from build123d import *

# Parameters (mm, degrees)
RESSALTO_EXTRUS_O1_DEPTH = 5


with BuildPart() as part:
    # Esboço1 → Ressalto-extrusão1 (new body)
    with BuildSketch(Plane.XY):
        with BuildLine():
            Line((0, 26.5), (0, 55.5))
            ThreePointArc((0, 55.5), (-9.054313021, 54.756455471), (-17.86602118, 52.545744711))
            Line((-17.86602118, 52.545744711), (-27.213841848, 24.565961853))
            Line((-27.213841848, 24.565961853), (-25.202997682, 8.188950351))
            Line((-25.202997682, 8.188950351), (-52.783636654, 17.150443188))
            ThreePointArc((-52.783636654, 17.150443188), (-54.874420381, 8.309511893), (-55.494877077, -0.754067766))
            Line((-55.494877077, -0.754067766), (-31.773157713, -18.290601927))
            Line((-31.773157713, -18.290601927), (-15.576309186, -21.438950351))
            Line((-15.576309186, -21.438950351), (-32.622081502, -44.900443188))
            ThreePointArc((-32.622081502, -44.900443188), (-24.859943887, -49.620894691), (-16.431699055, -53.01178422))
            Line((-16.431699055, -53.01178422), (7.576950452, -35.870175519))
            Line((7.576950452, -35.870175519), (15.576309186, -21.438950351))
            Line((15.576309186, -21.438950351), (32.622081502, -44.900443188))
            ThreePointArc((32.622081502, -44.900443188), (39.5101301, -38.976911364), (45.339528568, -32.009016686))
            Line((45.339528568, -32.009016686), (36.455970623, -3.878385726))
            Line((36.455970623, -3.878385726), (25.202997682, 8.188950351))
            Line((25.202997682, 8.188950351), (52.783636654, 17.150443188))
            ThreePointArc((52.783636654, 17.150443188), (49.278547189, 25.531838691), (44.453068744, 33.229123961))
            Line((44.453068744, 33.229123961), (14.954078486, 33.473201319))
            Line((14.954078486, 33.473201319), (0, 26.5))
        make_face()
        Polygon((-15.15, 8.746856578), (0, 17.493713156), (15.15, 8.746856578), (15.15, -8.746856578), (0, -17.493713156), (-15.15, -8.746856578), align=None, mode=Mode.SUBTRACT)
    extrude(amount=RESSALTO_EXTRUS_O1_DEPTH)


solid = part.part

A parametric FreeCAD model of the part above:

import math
import FreeCAD as App
import Part
import Sketcher
Q = App.Units.Quantity


def add_polygon(sketch, points):
    """Adds a closed chain of lines whose ends are joined by coincident constraints."""
    first, n = sketch.GeometryCount, len(points)
    for a, b in zip(points, points[1:] + points[:1]):
        sketch.addGeometry(Part.LineSegment(App.Vector(*a, 0), App.Vector(*b, 0)), False)
    for i in range(n):
        sketch.addConstraint(Sketcher.Constraint("Coincident", first + i, 2, first + (i + 1) % n, 1))

doc = App.newDocument("Part")
body = doc.addObject("PartDesign::Body", "Body")

# Sketch on XY plane
sketch1 = body.newObject("Sketcher::SketchObject", "Sketch")
sketch1.AttachmentSupport = (doc.getObject("XY_Plane"), [""])
sketch1.MapMode = "FlatFace"
sketch1.addGeometry(Part.LineSegment(App.Vector(0, 26.5, 0), App.Vector(0, 55.5, 0)), False)  # 0
sketch1.addGeometry(Part.ArcOfCircle(Part.Circle(App.Vector(0, 0, 0), App.Vector(0, 0, 1), 55.5), math.radians(90), math.radians(108.778491)), False)  # 1
sketch1.addGeometry(Part.LineSegment(App.Vector(-17.866021, 52.545745, 0), App.Vector(-27.213842, 24.565962, 0)), False)  # 2
sketch1.addGeometry(Part.LineSegment(App.Vector(-27.213842, 24.565962, 0), App.Vector(-25.202998, 8.18895, 0)), False)  # 3
sketch1.addGeometry(Part.LineSegment(App.Vector(-25.202998, 8.18895, 0), App.Vector(-52.783637, 17.150443, 0)), False)  # 4
sketch1.addGeometry(Part.ArcOfCircle(Part.Circle(App.Vector(0, 0, 0), App.Vector(0, 0, 1), 55.5), math.radians(162), math.radians(180.778491)), False)  # 5
sketch1.addGeometry(Part.LineSegment(App.Vector(-55.494877, -0.754068, 0), App.Vector(-31.773158, -18.290602, 0)), False)  # 6
sketch1.addGeometry(Part.LineSegment(App.Vector(-31.773158, -18.290602, 0), App.Vector(-15.576309, -21.43895, 0)), False)  # 7
sketch1.addGeometry(Part.LineSegment(App.Vector(-15.576309, -21.43895, 0), App.Vector(-32.622082, -44.900443, 0)), False)  # 8
sketch1.addGeometry(Part.ArcOfCircle(Part.Circle(App.Vector(0, 0, 0), App.Vector(0, 0, 1), 55.5), math.radians(-126), math.radians(-107.221509)), False)  # 9
sketch1.addGeometry(Part.LineSegment(App.Vector(-16.431699, -53.011784, 0), App.Vector(7.57695, -35.870176, 0)), False)  # 10
sketch1.addGeometry(Part.LineSegment(App.Vector(7.57695, -35.870176, 0), App.Vector(15.576309, -21.43895, 0)), False)  # 11
sketch1.addGeometry(Part.LineSegment(App.Vector(15.576309, -21.43895, 0), App.Vector(32.622082, -44.900443, 0)), False)  # 12
sketch1.addGeometry(Part.ArcOfCircle(Part.Circle(App.Vector(0, 0, 0), App.Vector(0, 0, 1), 55.5), math.radians(-54), math.radians(-35.221509)), False)  # 13
sketch1.addGeometry(Part.LineSegment(App.Vector(45.339529, -32.009017, 0), App.Vector(36.455971, -3.878386, 0)), False)  # 14
sketch1.addGeometry(Part.LineSegment(App.Vector(36.455971, -3.878386, 0), App.Vector(25.202998, 8.18895, 0)), False)  # 15
sketch1.addGeometry(Part.LineSegment(App.Vector(25.202998, 8.18895, 0), App.Vector(52.783637, 17.150443, 0)), False)  # 16
sketch1.addGeometry(Part.ArcOfCircle(Part.Circle(App.Vector(0, 0, 0), App.Vector(0, 0, 1), 55.5), math.radians(18), math.radians(36.778491)), False)  # 17
sketch1.addGeometry(Part.LineSegment(App.Vector(44.453069, 33.229124, 0), App.Vector(14.954078, 33.473201, 0)), False)  # 18
sketch1.addGeometry(Part.LineSegment(App.Vector(14.954078, 33.473201, 0), App.Vector(0, 26.5, 0)), False)  # 19
add_polygon(sketch1, [(-15.15, -8.746857), (-15.15, 8.746857), (0, 17.493713), (15.15, 8.746857), (15.15, -8.746857), (0, -17.493713)])  # lines 20-25
sketch1.addConstraint([
    Sketcher.Constraint("Coincident", 0, 2, 1, 1),
    Sketcher.Constraint("Coincident", 1, 2, 2, 1),
    Sketcher.Constraint("Coincident", 2, 2, 3, 1),
    Sketcher.Constraint("Coincident", 3, 2, 4, 1),
    Sketcher.Constraint("Coincident", 4, 2, 5, 1),
    Sketcher.Constraint("Coincident", 5, 2, 6, 1),
    Sketcher.Constraint("Coincident", 6, 2, 7, 1),
    Sketcher.Constraint("Coincident", 7, 2, 8, 1),
    Sketcher.Constraint("Coincident", 8, 2, 9, 1),
    Sketcher.Constraint("Coincident", 9, 2, 10, 1),
    Sketcher.Constraint("Coincident", 10, 2, 11, 1),
    Sketcher.Constraint("Coincident", 11, 2, 12, 1),
    Sketcher.Constraint("Coincident", 12, 2, 13, 1),
    Sketcher.Constraint("Coincident", 13, 2, 14, 1),
    Sketcher.Constraint("Coincident", 14, 2, 15, 1),
    Sketcher.Constraint("Coincident", 15, 2, 16, 1),
    Sketcher.Constraint("Coincident", 16, 2, 17, 1),
    Sketcher.Constraint("Coincident", 17, 2, 18, 1),
    Sketcher.Constraint("Coincident", 18, 2, 19, 1),
    Sketcher.Constraint("Coincident", 19, 2, 0, 1),
    Sketcher.Constraint("Vertical", 0),
    Sketcher.Constraint("Vertical", 20),
    Sketcher.Constraint("Vertical", 23),
    Sketcher.Constraint("Coincident", 1, 3, -1, 1),
    Sketcher.Constraint("Coincident", 5, 3, -1, 1),
    Sketcher.Constraint("Coincident", 9, 3, -1, 1),
    Sketcher.Constraint("Coincident", 13, 3, -1, 1),
    Sketcher.Constraint("Coincident", 17, 3, -1, 1),
    Sketcher.Constraint("Equal", 1, 5),
    Sketcher.Constraint("Equal", 5, 9),
    Sketcher.Constraint("Equal", 9, 13),
    Sketcher.Constraint("Equal", 13, 17),
    Sketcher.Constraint("Symmetric", 20, 2, 23, 2, -1, 1),
    Sketcher.Constraint("Symmetric", 21, 2, 24, 2, -1, 1),
    Sketcher.Constraint("Symmetric", 7, 2, 11, 2, -2),
    Sketcher.Constraint("Symmetric", 3, 2, 15, 2, -2),
    Sketcher.Constraint("PointOnObject", 0, 2, -2),
    Sketcher.Constraint("PointOnObject", 21, 2, -2),
    Sketcher.Constraint("Parallel", 22, 25),
    Sketcher.Constraint("Horizontal", 8, 2, 12, 2),
    Sketcher.Constraint("Horizontal", 4, 2, 16, 2),
    Sketcher.Constraint("Horizontal", 20, 2, 22, 2),
    Sketcher.Constraint("Equal", 2, 6),
    Sketcher.Constraint("Equal", 3, 7),
    Sketcher.Constraint("Equal", 4, 8),
    Sketcher.Constraint("Equal", 6, 10),
    Sketcher.Constraint("Equal", 7, 11),
    Sketcher.Constraint("Equal", 10, 14),
    Sketcher.Constraint("Equal", 11, 15),
    Sketcher.Constraint("Equal", 14, 18),
    Sketcher.Constraint("Equal", 15, 19),
    Sketcher.Constraint("Radius", 1, Q("55.5 mm")),
    Sketcher.Constraint("DistanceY", 0, 1, 0, 2, Q("29 mm")),
    Sketcher.Constraint("Angle", 3, Q("-83 deg")),
    Sketcher.Constraint("Angle", 4, Q("162 deg")),
    Sketcher.Constraint("Angle", 7, Q("-11 deg")),
    Sketcher.Constraint("Angle", 8, Q("-126 deg")),
    Sketcher.Constraint("Angle", 11, Q("61 deg")),
    Sketcher.Constraint("Angle", 15, Q("133 deg")),
    Sketcher.Constraint("Angle", 19, Q("-155 deg")),
    Sketcher.Constraint("Angle", 21, Q("30 deg")),
    Sketcher.Constraint("Distance", 4, Q("29 mm")),
    Sketcher.Constraint("Distance", 2, Q("29.5 mm")),
    Sketcher.Constraint("Distance", 3, Q("16.5 mm")),
    Sketcher.Constraint("DistanceX", 20, 2, -1, 1, Q("15.15 mm")),
    Sketcher.Constraint("DistanceY", 6, 2, -1, 1, Q("18.290602 mm")),
    Sketcher.Constraint("DistanceY", 4, 2, 1, 2, Q("35.395302 mm")),
    Sketcher.Constraint("DistanceY", 20, 1, 20, 2, Q("17.493713 mm")),
])
pad1 = body.newObject("PartDesign::Pad", "Pad")
pad1.Profile = sketch1
pad1.Length = 5

doc.recompute()
